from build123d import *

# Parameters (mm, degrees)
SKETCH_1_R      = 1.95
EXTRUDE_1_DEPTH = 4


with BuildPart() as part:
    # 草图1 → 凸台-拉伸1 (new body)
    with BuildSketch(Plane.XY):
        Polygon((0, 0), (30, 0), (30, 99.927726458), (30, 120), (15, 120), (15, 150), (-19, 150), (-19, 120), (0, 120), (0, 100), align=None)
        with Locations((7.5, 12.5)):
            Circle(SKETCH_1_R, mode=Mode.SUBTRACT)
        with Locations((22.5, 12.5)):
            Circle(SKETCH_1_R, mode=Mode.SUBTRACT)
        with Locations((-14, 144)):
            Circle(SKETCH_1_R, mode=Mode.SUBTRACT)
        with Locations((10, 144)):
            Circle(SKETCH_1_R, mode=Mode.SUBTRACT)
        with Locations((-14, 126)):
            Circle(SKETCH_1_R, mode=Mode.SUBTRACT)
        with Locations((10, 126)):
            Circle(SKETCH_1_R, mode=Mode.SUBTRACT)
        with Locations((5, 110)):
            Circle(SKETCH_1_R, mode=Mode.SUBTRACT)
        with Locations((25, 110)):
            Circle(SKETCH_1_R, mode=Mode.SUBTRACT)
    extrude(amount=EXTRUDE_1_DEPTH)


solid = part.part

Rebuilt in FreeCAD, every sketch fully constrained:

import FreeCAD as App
import Part
import Sketcher
from FreeCAD import Vector

doc = App.newDocument("Part")
body = doc.addObject("PartDesign::Body", "Body")

sketch1 = body.newObject("Sketcher::SketchObject", "Sketch")
sketch1.AttachmentSupport = (doc.getObject("XY_Plane"), [""])
sketch1.MapMode = "FlatFace"
sketch1.addGeometry([
    Part.LineSegment(Vector(0, 0, 0), Vector(30, 0, 0)),
    Part.LineSegment(Vector(30, 0, 0), Vector(30, 120, 0)),
    Part.LineSegment(Vector(30, 120, 0), Vector(15, 120, 0)),
    Part.LineSegment(Vector(15, 120, 0), Vector(15, 150, 0)),
    Part.LineSegment(Vector(15, 150, 0), Vector(-19, 150, 0)),
    Part.LineSegment(Vector(-19, 150, 0), Vector(-19, 120, 0)),
    Part.LineSegment(Vector(-19, 120, 0), Vector(0, 120, 0)),
    Part.LineSegment(Vector(0, 120, 0), Vector(0, 0, 0)),
    Part.Circle(Vector(7.5, 12.5, 0), Vector(0, 0, 1), 1.95),
    Part.Circle(Vector(22.5, 12.5, 0), Vector(0, 0, 1), 1.95),
    Part.Circle(Vector(5, 110, 0), Vector(0, 0, 1), 1.95),
    Part.Circle(Vector(-14, 126, 0), Vector(0, 0, 1), 1.95),
    Part.Circle(Vector(-14, 144, 0), Vector(0, 0, 1), 1.95),
    Part.Circle(Vector(25, 110, 0), Vector(0, 0, 1), 1.95),
    Part.Circle(Vector(10, 126, 0), Vector(0, 0, 1), 1.95),
    Part.Circle(Vector(10, 144, 0), Vector(0, 0, 1), 1.95),
], False)
sketch1.addConstraint([
    Sketcher.Constraint("Coincident", 0, 2, 1, 1),
    Sketcher.Constraint("Coincident", 1, 2, 2, 1),
    Sketcher.Constraint("Coincident", 2, 2, 3, 1),
    Sketcher.Constraint("Coincident", 3, 2, 4, 1),
    Sketcher.Constraint("Coincident", 4, 2, 5, 1),
    Sketcher.Constraint("Coincident", 5, 2, 6, 1),
    Sketcher.Constraint("Coincident", 6, 2, 7, 1),
    Sketcher.Constraint("Coincident", 7, 2, 0, 1),
    Sketcher.Constraint("Horizontal", 0),
    Sketcher.Constraint("Vertical", 1),
    Sketcher.Constraint("Horizontal", 2),
    Sketcher.Constraint("Vertical", 3),
    Sketcher.Constraint("Horizontal", 4),
    Sketcher.Constraint("Vertical", 5),
    Sketcher.Constraint("Horizontal", 6),
    Sketcher.Constraint("Vertical", 7),
    Sketcher.Constraint("Coincident", 7, 2, -1, 1),
    Sketcher.Constraint("Equal", 8, 9),
    Sketcher.Constraint("Equal", 9, 10),
    Sketcher.Constraint("Equal", 10, 11),
    Sketcher.Constraint("Equal", 11, 12),
    Sketcher.Constraint("Equal", 12, 13),
    Sketcher.Constraint("Equal", 13, 14),
    Sketcher.Constraint("Equal", 14, 15),
    Sketcher.Constraint("Horizontal", 8, 3, 9, 3),
    Sketcher.Constraint("Horizontal", 10, 3, 13, 3),
    Sketcher.Constraint("Horizontal", 11, 3, 14, 3),
    Sketcher.Constraint("Horizontal", 12, 3, 15, 3),
    Sketcher.Constraint("Horizontal", 2, 2, 5, 2),
    Sketcher.Constraint("Vertical", 11, 3, 12, 3),
    Sketcher.Constraint("Vertical", 14, 3, 15, 3),
    Sketcher.Constraint("Equal", 0, 3),
    Sketcher.Constraint("Diameter", 8, 3.9),
    Sketcher.Constraint("DistanceX", 0, 1, 0, 2, 30.0),
    Sketcher.Constraint("DistanceX", 2, 2, 2, 1, 15.0),
    Sketcher.Constraint("DistanceX", 4, 2, 4, 1, 34.0),
    Sketcher.Constraint("DistanceY", 1, 1, 1, 2, 120.0),
    Sketcher.Constraint("DistanceX", -1, 1, 10, 3, 5.0),
    Sketcher.Constraint("DistanceY", -1, 1, 10, 3, 110.0),
    Sketcher.Constraint("DistanceX", 11, 3, -1, 1, 14.0),
    Sketcher.Constraint("DistanceY", -1, 1, 11, 3, 126.0),
    Sketcher.Constraint("DistanceY", -1, 1, 12, 3, 144.0),
    Sketcher.Constraint("DistanceX", -1, 1, 13, 3, 25.0),
    Sketcher.Constraint("DistanceX", -1, 1, 14, 3, 10.0),
    Sketcher.Constraint("DistanceX", 8, 3, 9, 3, 15.0),
    Sketcher.Constraint("DistanceX", -1, 1, 8, 3, 7.5),
    Sketcher.Constraint("DistanceY", -1, 1, 8, 3, 12.5),
])
pad1 = body.newObject("PartDesign::Pad", "Pad")
pad1.Profile = sketch1
pad1.Length = 4

doc.recompute()
